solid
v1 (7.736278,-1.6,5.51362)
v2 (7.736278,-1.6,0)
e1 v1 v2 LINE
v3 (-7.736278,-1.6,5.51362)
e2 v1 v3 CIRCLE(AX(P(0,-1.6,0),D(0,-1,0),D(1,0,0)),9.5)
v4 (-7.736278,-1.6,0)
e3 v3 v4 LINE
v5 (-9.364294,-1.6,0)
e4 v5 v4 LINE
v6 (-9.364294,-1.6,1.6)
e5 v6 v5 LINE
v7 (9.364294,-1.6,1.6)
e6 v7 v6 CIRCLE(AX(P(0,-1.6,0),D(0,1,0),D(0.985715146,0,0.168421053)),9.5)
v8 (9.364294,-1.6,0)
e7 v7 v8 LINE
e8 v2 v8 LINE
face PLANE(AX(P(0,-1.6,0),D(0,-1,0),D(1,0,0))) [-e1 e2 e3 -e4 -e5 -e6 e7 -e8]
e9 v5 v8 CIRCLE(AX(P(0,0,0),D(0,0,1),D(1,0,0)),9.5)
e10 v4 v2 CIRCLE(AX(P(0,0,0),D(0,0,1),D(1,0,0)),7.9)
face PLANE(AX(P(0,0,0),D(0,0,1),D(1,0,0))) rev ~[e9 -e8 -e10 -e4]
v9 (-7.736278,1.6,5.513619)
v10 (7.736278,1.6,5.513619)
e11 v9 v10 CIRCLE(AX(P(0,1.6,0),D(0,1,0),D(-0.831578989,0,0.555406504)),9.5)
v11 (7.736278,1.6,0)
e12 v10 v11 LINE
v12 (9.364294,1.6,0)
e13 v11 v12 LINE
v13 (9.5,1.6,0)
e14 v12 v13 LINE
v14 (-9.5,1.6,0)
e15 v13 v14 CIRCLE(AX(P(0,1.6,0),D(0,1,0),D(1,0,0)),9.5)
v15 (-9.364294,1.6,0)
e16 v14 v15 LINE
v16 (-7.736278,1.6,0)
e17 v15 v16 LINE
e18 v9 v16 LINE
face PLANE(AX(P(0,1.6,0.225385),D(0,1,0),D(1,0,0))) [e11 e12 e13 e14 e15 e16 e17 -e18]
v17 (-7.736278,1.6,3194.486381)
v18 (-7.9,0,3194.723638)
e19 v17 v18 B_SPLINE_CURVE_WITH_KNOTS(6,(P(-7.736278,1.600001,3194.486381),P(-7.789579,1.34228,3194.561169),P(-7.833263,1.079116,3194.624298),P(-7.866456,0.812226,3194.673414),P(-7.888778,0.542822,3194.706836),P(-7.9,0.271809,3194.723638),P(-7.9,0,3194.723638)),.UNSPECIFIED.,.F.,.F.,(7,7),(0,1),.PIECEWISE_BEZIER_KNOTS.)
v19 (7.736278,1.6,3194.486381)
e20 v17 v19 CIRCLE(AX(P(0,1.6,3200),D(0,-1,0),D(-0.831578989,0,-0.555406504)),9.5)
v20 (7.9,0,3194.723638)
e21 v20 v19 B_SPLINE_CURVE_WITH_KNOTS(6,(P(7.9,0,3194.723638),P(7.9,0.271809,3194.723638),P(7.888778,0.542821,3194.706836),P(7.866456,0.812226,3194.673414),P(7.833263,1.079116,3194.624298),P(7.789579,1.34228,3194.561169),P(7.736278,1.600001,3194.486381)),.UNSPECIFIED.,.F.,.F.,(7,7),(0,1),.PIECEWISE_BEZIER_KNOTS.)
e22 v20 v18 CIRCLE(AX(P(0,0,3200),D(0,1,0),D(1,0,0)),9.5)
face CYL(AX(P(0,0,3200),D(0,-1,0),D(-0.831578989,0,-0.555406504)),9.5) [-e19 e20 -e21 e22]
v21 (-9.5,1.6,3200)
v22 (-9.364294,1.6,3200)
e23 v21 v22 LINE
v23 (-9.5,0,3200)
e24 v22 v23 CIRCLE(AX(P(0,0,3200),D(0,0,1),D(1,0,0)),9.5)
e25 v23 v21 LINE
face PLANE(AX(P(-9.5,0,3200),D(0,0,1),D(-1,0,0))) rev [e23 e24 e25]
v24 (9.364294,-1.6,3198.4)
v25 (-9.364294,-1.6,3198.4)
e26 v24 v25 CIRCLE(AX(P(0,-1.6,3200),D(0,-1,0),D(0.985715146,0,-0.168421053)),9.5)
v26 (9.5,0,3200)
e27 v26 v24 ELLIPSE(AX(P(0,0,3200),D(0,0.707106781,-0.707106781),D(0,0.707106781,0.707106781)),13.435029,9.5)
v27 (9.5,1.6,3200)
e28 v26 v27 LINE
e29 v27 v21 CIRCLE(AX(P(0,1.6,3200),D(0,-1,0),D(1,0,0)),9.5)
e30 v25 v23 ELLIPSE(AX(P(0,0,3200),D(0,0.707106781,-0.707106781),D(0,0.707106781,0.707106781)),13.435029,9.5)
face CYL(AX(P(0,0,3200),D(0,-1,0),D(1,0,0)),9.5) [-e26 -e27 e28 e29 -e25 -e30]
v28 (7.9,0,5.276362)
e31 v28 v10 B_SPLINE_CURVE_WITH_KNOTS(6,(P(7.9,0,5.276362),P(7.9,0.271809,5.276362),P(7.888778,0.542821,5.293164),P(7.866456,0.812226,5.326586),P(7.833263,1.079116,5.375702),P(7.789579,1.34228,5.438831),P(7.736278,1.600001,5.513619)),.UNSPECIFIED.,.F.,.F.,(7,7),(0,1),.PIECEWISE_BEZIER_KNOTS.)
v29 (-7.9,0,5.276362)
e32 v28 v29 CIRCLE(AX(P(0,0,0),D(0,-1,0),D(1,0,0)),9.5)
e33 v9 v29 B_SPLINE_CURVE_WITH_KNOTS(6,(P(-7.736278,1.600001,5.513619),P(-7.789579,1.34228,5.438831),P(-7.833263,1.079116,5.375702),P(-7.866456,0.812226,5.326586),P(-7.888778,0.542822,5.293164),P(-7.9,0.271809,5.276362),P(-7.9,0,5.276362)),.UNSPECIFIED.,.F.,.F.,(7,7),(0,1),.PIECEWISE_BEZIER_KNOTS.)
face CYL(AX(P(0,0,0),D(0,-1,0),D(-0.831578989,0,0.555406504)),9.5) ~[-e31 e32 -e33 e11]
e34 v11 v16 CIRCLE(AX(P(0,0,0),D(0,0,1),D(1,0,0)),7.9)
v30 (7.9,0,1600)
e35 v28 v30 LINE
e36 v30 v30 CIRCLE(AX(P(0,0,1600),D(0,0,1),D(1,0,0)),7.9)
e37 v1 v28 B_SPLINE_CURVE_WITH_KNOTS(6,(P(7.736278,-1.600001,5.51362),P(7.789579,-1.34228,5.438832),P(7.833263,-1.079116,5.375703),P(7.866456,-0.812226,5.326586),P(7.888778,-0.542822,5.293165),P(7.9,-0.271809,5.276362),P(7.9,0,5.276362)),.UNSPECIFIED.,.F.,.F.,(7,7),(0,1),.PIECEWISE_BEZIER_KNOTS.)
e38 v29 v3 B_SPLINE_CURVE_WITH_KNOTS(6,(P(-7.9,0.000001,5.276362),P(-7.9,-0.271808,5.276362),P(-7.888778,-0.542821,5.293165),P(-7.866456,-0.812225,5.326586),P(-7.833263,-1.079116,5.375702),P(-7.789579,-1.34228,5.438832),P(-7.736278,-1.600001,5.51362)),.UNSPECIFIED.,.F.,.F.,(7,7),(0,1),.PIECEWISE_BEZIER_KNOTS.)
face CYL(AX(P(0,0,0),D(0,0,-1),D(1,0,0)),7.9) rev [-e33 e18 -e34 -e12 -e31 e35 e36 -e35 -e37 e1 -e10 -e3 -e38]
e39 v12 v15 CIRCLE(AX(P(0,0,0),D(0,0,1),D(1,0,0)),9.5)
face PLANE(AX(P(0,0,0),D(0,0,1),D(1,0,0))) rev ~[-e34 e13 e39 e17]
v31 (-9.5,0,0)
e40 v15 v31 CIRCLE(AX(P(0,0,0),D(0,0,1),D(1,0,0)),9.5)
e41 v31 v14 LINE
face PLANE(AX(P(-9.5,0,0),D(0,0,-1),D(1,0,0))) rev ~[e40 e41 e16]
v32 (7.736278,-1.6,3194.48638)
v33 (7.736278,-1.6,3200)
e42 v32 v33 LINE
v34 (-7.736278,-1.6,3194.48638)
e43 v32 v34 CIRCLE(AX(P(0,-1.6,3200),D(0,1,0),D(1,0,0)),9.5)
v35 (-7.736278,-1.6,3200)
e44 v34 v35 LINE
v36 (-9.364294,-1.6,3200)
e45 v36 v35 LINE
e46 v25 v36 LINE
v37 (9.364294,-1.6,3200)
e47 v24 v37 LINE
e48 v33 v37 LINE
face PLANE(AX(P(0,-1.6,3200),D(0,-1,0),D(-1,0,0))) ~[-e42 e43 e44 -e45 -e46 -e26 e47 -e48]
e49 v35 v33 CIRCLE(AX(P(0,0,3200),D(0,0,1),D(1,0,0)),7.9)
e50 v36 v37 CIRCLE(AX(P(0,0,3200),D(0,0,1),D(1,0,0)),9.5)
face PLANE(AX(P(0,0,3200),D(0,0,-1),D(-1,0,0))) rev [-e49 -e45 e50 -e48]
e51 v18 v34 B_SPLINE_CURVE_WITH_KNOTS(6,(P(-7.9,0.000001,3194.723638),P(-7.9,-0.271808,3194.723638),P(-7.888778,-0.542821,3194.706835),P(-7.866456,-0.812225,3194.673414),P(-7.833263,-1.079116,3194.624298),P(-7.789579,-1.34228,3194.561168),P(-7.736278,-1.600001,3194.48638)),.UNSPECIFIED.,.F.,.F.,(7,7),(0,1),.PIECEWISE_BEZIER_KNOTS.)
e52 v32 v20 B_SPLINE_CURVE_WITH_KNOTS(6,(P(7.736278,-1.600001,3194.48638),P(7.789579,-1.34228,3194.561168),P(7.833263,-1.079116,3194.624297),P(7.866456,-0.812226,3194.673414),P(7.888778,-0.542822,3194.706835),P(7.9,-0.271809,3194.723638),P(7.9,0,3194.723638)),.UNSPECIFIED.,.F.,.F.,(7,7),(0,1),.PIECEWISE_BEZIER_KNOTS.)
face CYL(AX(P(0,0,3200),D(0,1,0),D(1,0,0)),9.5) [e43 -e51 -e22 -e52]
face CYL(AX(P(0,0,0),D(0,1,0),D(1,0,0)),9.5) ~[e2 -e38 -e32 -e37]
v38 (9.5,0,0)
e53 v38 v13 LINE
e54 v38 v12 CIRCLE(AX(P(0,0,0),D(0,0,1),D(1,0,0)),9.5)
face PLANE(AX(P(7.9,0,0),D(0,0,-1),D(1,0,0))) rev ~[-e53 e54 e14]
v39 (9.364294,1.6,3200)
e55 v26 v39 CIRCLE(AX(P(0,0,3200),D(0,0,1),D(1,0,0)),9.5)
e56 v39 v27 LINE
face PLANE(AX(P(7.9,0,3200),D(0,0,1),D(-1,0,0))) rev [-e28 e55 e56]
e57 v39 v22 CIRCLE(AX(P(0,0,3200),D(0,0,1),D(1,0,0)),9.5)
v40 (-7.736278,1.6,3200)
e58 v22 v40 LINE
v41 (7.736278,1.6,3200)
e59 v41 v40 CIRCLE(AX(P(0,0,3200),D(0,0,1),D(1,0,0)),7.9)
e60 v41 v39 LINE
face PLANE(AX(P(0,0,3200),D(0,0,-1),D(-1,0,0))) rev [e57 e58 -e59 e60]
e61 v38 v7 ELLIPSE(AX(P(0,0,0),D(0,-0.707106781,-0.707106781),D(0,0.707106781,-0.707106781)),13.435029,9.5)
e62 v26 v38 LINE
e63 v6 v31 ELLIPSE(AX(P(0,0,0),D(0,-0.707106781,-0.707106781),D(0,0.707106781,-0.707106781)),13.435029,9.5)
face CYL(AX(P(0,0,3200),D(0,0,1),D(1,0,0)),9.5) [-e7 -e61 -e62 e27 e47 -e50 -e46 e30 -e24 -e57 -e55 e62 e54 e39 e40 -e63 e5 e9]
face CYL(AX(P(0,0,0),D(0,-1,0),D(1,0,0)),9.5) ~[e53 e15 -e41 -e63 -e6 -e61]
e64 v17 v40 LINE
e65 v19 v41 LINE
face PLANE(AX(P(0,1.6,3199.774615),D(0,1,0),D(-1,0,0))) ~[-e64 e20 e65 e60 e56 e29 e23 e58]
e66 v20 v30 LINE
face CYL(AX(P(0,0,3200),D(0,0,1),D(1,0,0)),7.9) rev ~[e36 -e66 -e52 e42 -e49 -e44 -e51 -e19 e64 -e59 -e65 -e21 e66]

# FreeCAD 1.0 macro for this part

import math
import FreeCAD as App
import Part
import Sketcher

V = App.Vector
Q = App.Units.Quantity

doc = App.newDocument("Part")
body = doc.addObject("PartDesign::Body", "Body")

sketch1 = doc.addObject("Sketcher::SketchObject", "Sketch")
body.addObject(sketch1)
sketch1.AttachmentSupport = (doc.XY_Plane, [""])
sketch1.MapMode = "FlatFace"
sketch1.addGeometry(Part.Circle(V(0, 0, 0), V(0, 0, 1), 10), False)
sketch1.addGeometry(Part.Circle(V(0, 0, 0), V(0, 0, 1), 8), False)
sketch1.addConstraint(Sketcher.Constraint("Coincident", 0, 3, -1, 1))
sketch1.addConstraint(Sketcher.Constraint("Coincident", 1, 3, -1, 1))
sketch1.addConstraint(Sketcher.Constraint("Diameter", 0, Q("19 mm")))
sketch1.addConstraint(Sketcher.Constraint("Diameter", 1, Q("15.8 mm")))
pad1 = doc.addObject("PartDesign::Pad", "Pad")
body.addObject(pad1)
pad1.Profile = sketch1
pad1.Length = 1600

sketch2 = doc.addObject("Sketcher::SketchObject", "Sketch001")
body.addObject(sketch2)
sketch2.AttachmentSupport = (doc.XZ_Plane, [""])
sketch2.MapMode = "FlatFace"
sketch2.addGeometry(Part.Circle(V(0, 0, 0), V(0, 0, 1), 10), False)
sketch2.addConstraint(Sketcher.Constraint("Coincident", 0, 3, -1, 1))
sketch2.addConstraint(Sketcher.Constraint("Diameter", 0, Q("19 mm")))
pad2 = doc.addObject("PartDesign::Pad", "Pad001")
body.addObject(pad2)
pad2.Profile = sketch2
pad2.Length = 1.6

sketch3 = doc.addObject("Sketcher::SketchObject", "Sketch002")
body.addObject(sketch3)
sketch3.AttachmentSupport = (doc.XZ_Plane, [""])
sketch3.MapMode = "FlatFace"
sketch3.addGeometry(Part.ArcOfCircle(Part.Circle(V(0, 0, 0), V(0, 0, 1), 9.5), math.radians(180), math.radians(360)), False)
sketch3.addGeometry(Part.LineSegment(V(-9.5, 0, 0), V(-7.9, 0, 0)), False)
sketch3.addGeometry(Part.LineSegment(V(-7.9, 0, 0), V(-7.9, 5.3, 0)), False)
sketch3.addGeometry(Part.ArcOfCircle(Part.Circle(V(0, 0, 0), V(0, 0, 1), 9.5), math.radians(34), math.radians(146)), False)
sketch3.addGeometry(Part.LineSegment(V(7.9, 5.3, 0), V(7.9, 0, 0)), False)
sketch3.addGeometry(Part.LineSegment(V(7.9, 0, 0), V(9.5, 0, 0)), False)
sketch3.addConstraint(Sketcher.Constraint("Coincident", 0, 1, 1, 1))
sketch3.addConstraint(Sketcher.Constraint("Coincident", 1, 2, 2, 1))
sketch3.addConstraint(Sketcher.Constraint("Coincident", 2, 2, 3, 2))
sketch3.addConstraint(Sketcher.Constraint("Coincident", 3, 1, 4, 1))
sketch3.addConstraint(Sketcher.Constraint("Coincident", 4, 2, 5, 1))
sketch3.addConstraint(Sketcher.Constraint("Coincident", 5, 2, 0, 2))
sketch3.addConstraint(Sketcher.Constraint("Horizontal", 1))
sketch3.addConstraint(Sketcher.Constraint("Vertical", 2))
sketch3.addConstraint(Sketcher.Constraint("Vertical", 4))
sketch3.addConstraint(Sketcher.Constraint("Horizontal", 5))
sketch3.addConstraint(Sketcher.Constraint("Coincident", 0, 3, -1, 1))
sketch3.addConstraint(Sketcher.Constraint("Coincident", 3, 3, -1, 1))
sketch3.addConstraint(Sketcher.Constraint("Equal", 0, 3))
sketch3.addConstraint(Sketcher.Constraint("Symmetric", 1, 2, 4, 2, -1, 1))
sketch3.addConstraint(Sketcher.Constraint("PointOnObject", 0, 1, -1))
sketch3.addConstraint(Sketcher.Constraint("Radius", 0, Q("9.5 mm")))
sketch3.addConstraint(Sketcher.Constraint("DistanceX", 1, 1, 1, 2, Q("1.6 mm")))
pad3 = doc.addObject("PartDesign::Pad", "Pad002")
body.addObject(pad3)
pad3.Profile = sketch3
pad3.Length = 1.6
pad3.Reversed = True
body2 = doc.addObject("PartDesign::Body", "Body001")
doc.recompute()

body2.BaseFeature = body
doc.recompute()

mirroring = doc.addObject("Part::Mirroring", "Mirroring")
mirroring.Source = body
mirroring.Base = V(0, 0, 1600)
mirroring.Normal = V(0, 0, 1)
body3 = doc.addObject("PartDesign::Body", "Body002")
body3.BaseFeature = mirroring
boolean = doc.addObject("PartDesign::Boolean", "Boolean")
body2.addObject(boolean)
boolean.Type = "Fuse"
boolean.addObjects([body3])
doc.recompute()
mirroring.Visibility = False

doc.recompute()
